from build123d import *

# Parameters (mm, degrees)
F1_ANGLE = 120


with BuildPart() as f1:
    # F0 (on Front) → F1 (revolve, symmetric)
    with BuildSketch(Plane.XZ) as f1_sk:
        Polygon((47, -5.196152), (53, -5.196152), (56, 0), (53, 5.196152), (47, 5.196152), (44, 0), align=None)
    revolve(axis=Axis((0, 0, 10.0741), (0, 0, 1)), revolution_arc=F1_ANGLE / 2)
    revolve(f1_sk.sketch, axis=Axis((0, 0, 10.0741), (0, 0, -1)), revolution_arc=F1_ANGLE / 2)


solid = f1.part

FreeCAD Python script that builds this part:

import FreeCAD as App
import Part
import Sketcher
Q = App.Units.Quantity

doc = App.newDocument("Part")
body = doc.addObject("PartDesign::Body", "Body")

# Sketch on XZ plane
sketch1 = body.newObject("Sketcher::SketchObject", "Sketch")
sketch1.AttachmentSupport = (doc.getObject("XZ_Plane"), [""])
sketch1.MapMode = "FlatFace"
sketch1.addGeometry([
    Part.LineSegment(App.Vector(47, -5.196152, 0), App.Vector(53, -5.196152, 0)),  # 0
    Part.LineSegment(App.Vector(53, -5.196152, 0), App.Vector(56, 0, 0)),  # 1
    Part.LineSegment(App.Vector(56, 0, 0), App.Vector(53, 5.196152, 0)),  # 2
    Part.LineSegment(App.Vector(53, 5.196152, 0), App.Vector(47, 5.196152, 0)),  # 3
    Part.LineSegment(App.Vector(47, 5.196152, 0), App.Vector(44, 0, 0)),  # 4
    Part.LineSegment(App.Vector(44, 0, 0), App.Vector(47, -5.196152, 0)),  # 5
], False)
sketch1.addConstraint([
    Sketcher.Constraint("Coincident", 0, 2, 1, 1),
    Sketcher.Constraint("Coincident", 1, 2, 2, 1),
    Sketcher.Constraint("Coincident", 2, 2, 3, 1),
    Sketcher.Constraint("Coincident", 3, 2, 4, 1),
    Sketcher.Constraint("Coincident", 4, 2, 5, 1),
    Sketcher.Constraint("Coincident", 5, 2, 0, 1),
    Sketcher.Constraint("Horizontal", 0),
    Sketcher.Constraint("Horizontal", 3),
    Sketcher.Constraint("Symmetric", 0, 2, 2, 2, -1),
    Sketcher.Constraint("PointOnObject", 1, 2, -1),
    Sketcher.Constraint("PointOnObject", 4, 2, -1),
    Sketcher.Constraint("Parallel", 1, 4),
    Sketcher.Constraint("Parallel", 2, 5),
    Sketcher.Constraint("DistanceX", 0, 1, 0, 2, 6.0),
    Sketcher.Constraint("Angle", 1, Q("59.999998 deg")),
    Sketcher.Constraint("Distance", 1, 6.0),
    Sketcher.Constraint("DistanceX", -1, 1, 0, 2, 53.0),
])
revolution = body.newObject("PartDesign::Revolution", "Revolution")
revolution.Profile = sketch1
revolution.ReferenceAxis = (sketch1, ["V_Axis"])
revolution.Angle = 60

# Sketch on XZ plane
sketch2 = body.newObject("Sketcher::SketchObject", "Sketch001")
sketch2.AttachmentSupport = (doc.getObject("XZ_Plane"), [""])
sketch2.MapMode = "FlatFace"
sketch2.addGeometry([
    Part.LineSegment(App.Vector(47, -5.196152, 0), App.Vector(53, -5.196152, 0)),  # 0
    Part.LineSegment(App.Vector(53, -5.196152, 0), App.Vector(56, 0, 0)),  # 1
    Part.LineSegment(App.Vector(56, 0, 0), App.Vector(53, 5.196152, 0)),  # 2
    Part.LineSegment(App.Vector(53, 5.196152, 0), App.Vector(47, 5.196152, 0)),  # 3
    Part.LineSegment(App.Vector(47, 5.196152, 0), App.Vector(44, 0, 0)),  # 4
    Part.LineSegment(App.Vector(44, 0, 0), App.Vector(47, -5.196152, 0)),  # 5
], False)
sketch2.addConstraint([
    Sketcher.Constraint("Coincident", 0, 2, 1, 1),
    Sketcher.Constraint("Coincident", 1, 2, 2, 1),
    Sketcher.Constraint("Coincident", 2, 2, 3, 1),
    Sketcher.Constraint("Coincident", 3, 2, 4, 1),
    Sketcher.Constraint("Coincident", 4, 2, 5, 1),
    Sketcher.Constraint("Coincident", 5, 2, 0, 1),
    Sketcher.Constraint("Horizontal", 0),
    Sketcher.Constraint("Horizontal", 3),
    Sketcher.Constraint("Symmetric", 0, 2, 2, 2, -1),
    Sketcher.Constraint("PointOnObject", 1, 2, -1),
    Sketcher.Constraint("PointOnObject", 4, 2, -1),
    Sketcher.Constraint("Parallel", 1, 4),
    Sketcher.Constraint("Parallel", 2, 5),
    Sketcher.Constraint("DistanceX", 0, 1, 0, 2, 6.0),
    Sketcher.Constraint("Angle", 1, Q("59.999998 deg")),
    Sketcher.Constraint("Distance", 1, 6.0),
    Sketcher.Constraint("DistanceX", -1, 1, 0, 2, 53.0),
])
revolution2 = body.newObject("PartDesign::Revolution", "Revolution001")
revolution2.Profile = sketch2
revolution2.ReferenceAxis = (sketch2, ["V_Axis"])
revolution2.Angle = 60
revolution2.Reversed = True

doc.recompute()
